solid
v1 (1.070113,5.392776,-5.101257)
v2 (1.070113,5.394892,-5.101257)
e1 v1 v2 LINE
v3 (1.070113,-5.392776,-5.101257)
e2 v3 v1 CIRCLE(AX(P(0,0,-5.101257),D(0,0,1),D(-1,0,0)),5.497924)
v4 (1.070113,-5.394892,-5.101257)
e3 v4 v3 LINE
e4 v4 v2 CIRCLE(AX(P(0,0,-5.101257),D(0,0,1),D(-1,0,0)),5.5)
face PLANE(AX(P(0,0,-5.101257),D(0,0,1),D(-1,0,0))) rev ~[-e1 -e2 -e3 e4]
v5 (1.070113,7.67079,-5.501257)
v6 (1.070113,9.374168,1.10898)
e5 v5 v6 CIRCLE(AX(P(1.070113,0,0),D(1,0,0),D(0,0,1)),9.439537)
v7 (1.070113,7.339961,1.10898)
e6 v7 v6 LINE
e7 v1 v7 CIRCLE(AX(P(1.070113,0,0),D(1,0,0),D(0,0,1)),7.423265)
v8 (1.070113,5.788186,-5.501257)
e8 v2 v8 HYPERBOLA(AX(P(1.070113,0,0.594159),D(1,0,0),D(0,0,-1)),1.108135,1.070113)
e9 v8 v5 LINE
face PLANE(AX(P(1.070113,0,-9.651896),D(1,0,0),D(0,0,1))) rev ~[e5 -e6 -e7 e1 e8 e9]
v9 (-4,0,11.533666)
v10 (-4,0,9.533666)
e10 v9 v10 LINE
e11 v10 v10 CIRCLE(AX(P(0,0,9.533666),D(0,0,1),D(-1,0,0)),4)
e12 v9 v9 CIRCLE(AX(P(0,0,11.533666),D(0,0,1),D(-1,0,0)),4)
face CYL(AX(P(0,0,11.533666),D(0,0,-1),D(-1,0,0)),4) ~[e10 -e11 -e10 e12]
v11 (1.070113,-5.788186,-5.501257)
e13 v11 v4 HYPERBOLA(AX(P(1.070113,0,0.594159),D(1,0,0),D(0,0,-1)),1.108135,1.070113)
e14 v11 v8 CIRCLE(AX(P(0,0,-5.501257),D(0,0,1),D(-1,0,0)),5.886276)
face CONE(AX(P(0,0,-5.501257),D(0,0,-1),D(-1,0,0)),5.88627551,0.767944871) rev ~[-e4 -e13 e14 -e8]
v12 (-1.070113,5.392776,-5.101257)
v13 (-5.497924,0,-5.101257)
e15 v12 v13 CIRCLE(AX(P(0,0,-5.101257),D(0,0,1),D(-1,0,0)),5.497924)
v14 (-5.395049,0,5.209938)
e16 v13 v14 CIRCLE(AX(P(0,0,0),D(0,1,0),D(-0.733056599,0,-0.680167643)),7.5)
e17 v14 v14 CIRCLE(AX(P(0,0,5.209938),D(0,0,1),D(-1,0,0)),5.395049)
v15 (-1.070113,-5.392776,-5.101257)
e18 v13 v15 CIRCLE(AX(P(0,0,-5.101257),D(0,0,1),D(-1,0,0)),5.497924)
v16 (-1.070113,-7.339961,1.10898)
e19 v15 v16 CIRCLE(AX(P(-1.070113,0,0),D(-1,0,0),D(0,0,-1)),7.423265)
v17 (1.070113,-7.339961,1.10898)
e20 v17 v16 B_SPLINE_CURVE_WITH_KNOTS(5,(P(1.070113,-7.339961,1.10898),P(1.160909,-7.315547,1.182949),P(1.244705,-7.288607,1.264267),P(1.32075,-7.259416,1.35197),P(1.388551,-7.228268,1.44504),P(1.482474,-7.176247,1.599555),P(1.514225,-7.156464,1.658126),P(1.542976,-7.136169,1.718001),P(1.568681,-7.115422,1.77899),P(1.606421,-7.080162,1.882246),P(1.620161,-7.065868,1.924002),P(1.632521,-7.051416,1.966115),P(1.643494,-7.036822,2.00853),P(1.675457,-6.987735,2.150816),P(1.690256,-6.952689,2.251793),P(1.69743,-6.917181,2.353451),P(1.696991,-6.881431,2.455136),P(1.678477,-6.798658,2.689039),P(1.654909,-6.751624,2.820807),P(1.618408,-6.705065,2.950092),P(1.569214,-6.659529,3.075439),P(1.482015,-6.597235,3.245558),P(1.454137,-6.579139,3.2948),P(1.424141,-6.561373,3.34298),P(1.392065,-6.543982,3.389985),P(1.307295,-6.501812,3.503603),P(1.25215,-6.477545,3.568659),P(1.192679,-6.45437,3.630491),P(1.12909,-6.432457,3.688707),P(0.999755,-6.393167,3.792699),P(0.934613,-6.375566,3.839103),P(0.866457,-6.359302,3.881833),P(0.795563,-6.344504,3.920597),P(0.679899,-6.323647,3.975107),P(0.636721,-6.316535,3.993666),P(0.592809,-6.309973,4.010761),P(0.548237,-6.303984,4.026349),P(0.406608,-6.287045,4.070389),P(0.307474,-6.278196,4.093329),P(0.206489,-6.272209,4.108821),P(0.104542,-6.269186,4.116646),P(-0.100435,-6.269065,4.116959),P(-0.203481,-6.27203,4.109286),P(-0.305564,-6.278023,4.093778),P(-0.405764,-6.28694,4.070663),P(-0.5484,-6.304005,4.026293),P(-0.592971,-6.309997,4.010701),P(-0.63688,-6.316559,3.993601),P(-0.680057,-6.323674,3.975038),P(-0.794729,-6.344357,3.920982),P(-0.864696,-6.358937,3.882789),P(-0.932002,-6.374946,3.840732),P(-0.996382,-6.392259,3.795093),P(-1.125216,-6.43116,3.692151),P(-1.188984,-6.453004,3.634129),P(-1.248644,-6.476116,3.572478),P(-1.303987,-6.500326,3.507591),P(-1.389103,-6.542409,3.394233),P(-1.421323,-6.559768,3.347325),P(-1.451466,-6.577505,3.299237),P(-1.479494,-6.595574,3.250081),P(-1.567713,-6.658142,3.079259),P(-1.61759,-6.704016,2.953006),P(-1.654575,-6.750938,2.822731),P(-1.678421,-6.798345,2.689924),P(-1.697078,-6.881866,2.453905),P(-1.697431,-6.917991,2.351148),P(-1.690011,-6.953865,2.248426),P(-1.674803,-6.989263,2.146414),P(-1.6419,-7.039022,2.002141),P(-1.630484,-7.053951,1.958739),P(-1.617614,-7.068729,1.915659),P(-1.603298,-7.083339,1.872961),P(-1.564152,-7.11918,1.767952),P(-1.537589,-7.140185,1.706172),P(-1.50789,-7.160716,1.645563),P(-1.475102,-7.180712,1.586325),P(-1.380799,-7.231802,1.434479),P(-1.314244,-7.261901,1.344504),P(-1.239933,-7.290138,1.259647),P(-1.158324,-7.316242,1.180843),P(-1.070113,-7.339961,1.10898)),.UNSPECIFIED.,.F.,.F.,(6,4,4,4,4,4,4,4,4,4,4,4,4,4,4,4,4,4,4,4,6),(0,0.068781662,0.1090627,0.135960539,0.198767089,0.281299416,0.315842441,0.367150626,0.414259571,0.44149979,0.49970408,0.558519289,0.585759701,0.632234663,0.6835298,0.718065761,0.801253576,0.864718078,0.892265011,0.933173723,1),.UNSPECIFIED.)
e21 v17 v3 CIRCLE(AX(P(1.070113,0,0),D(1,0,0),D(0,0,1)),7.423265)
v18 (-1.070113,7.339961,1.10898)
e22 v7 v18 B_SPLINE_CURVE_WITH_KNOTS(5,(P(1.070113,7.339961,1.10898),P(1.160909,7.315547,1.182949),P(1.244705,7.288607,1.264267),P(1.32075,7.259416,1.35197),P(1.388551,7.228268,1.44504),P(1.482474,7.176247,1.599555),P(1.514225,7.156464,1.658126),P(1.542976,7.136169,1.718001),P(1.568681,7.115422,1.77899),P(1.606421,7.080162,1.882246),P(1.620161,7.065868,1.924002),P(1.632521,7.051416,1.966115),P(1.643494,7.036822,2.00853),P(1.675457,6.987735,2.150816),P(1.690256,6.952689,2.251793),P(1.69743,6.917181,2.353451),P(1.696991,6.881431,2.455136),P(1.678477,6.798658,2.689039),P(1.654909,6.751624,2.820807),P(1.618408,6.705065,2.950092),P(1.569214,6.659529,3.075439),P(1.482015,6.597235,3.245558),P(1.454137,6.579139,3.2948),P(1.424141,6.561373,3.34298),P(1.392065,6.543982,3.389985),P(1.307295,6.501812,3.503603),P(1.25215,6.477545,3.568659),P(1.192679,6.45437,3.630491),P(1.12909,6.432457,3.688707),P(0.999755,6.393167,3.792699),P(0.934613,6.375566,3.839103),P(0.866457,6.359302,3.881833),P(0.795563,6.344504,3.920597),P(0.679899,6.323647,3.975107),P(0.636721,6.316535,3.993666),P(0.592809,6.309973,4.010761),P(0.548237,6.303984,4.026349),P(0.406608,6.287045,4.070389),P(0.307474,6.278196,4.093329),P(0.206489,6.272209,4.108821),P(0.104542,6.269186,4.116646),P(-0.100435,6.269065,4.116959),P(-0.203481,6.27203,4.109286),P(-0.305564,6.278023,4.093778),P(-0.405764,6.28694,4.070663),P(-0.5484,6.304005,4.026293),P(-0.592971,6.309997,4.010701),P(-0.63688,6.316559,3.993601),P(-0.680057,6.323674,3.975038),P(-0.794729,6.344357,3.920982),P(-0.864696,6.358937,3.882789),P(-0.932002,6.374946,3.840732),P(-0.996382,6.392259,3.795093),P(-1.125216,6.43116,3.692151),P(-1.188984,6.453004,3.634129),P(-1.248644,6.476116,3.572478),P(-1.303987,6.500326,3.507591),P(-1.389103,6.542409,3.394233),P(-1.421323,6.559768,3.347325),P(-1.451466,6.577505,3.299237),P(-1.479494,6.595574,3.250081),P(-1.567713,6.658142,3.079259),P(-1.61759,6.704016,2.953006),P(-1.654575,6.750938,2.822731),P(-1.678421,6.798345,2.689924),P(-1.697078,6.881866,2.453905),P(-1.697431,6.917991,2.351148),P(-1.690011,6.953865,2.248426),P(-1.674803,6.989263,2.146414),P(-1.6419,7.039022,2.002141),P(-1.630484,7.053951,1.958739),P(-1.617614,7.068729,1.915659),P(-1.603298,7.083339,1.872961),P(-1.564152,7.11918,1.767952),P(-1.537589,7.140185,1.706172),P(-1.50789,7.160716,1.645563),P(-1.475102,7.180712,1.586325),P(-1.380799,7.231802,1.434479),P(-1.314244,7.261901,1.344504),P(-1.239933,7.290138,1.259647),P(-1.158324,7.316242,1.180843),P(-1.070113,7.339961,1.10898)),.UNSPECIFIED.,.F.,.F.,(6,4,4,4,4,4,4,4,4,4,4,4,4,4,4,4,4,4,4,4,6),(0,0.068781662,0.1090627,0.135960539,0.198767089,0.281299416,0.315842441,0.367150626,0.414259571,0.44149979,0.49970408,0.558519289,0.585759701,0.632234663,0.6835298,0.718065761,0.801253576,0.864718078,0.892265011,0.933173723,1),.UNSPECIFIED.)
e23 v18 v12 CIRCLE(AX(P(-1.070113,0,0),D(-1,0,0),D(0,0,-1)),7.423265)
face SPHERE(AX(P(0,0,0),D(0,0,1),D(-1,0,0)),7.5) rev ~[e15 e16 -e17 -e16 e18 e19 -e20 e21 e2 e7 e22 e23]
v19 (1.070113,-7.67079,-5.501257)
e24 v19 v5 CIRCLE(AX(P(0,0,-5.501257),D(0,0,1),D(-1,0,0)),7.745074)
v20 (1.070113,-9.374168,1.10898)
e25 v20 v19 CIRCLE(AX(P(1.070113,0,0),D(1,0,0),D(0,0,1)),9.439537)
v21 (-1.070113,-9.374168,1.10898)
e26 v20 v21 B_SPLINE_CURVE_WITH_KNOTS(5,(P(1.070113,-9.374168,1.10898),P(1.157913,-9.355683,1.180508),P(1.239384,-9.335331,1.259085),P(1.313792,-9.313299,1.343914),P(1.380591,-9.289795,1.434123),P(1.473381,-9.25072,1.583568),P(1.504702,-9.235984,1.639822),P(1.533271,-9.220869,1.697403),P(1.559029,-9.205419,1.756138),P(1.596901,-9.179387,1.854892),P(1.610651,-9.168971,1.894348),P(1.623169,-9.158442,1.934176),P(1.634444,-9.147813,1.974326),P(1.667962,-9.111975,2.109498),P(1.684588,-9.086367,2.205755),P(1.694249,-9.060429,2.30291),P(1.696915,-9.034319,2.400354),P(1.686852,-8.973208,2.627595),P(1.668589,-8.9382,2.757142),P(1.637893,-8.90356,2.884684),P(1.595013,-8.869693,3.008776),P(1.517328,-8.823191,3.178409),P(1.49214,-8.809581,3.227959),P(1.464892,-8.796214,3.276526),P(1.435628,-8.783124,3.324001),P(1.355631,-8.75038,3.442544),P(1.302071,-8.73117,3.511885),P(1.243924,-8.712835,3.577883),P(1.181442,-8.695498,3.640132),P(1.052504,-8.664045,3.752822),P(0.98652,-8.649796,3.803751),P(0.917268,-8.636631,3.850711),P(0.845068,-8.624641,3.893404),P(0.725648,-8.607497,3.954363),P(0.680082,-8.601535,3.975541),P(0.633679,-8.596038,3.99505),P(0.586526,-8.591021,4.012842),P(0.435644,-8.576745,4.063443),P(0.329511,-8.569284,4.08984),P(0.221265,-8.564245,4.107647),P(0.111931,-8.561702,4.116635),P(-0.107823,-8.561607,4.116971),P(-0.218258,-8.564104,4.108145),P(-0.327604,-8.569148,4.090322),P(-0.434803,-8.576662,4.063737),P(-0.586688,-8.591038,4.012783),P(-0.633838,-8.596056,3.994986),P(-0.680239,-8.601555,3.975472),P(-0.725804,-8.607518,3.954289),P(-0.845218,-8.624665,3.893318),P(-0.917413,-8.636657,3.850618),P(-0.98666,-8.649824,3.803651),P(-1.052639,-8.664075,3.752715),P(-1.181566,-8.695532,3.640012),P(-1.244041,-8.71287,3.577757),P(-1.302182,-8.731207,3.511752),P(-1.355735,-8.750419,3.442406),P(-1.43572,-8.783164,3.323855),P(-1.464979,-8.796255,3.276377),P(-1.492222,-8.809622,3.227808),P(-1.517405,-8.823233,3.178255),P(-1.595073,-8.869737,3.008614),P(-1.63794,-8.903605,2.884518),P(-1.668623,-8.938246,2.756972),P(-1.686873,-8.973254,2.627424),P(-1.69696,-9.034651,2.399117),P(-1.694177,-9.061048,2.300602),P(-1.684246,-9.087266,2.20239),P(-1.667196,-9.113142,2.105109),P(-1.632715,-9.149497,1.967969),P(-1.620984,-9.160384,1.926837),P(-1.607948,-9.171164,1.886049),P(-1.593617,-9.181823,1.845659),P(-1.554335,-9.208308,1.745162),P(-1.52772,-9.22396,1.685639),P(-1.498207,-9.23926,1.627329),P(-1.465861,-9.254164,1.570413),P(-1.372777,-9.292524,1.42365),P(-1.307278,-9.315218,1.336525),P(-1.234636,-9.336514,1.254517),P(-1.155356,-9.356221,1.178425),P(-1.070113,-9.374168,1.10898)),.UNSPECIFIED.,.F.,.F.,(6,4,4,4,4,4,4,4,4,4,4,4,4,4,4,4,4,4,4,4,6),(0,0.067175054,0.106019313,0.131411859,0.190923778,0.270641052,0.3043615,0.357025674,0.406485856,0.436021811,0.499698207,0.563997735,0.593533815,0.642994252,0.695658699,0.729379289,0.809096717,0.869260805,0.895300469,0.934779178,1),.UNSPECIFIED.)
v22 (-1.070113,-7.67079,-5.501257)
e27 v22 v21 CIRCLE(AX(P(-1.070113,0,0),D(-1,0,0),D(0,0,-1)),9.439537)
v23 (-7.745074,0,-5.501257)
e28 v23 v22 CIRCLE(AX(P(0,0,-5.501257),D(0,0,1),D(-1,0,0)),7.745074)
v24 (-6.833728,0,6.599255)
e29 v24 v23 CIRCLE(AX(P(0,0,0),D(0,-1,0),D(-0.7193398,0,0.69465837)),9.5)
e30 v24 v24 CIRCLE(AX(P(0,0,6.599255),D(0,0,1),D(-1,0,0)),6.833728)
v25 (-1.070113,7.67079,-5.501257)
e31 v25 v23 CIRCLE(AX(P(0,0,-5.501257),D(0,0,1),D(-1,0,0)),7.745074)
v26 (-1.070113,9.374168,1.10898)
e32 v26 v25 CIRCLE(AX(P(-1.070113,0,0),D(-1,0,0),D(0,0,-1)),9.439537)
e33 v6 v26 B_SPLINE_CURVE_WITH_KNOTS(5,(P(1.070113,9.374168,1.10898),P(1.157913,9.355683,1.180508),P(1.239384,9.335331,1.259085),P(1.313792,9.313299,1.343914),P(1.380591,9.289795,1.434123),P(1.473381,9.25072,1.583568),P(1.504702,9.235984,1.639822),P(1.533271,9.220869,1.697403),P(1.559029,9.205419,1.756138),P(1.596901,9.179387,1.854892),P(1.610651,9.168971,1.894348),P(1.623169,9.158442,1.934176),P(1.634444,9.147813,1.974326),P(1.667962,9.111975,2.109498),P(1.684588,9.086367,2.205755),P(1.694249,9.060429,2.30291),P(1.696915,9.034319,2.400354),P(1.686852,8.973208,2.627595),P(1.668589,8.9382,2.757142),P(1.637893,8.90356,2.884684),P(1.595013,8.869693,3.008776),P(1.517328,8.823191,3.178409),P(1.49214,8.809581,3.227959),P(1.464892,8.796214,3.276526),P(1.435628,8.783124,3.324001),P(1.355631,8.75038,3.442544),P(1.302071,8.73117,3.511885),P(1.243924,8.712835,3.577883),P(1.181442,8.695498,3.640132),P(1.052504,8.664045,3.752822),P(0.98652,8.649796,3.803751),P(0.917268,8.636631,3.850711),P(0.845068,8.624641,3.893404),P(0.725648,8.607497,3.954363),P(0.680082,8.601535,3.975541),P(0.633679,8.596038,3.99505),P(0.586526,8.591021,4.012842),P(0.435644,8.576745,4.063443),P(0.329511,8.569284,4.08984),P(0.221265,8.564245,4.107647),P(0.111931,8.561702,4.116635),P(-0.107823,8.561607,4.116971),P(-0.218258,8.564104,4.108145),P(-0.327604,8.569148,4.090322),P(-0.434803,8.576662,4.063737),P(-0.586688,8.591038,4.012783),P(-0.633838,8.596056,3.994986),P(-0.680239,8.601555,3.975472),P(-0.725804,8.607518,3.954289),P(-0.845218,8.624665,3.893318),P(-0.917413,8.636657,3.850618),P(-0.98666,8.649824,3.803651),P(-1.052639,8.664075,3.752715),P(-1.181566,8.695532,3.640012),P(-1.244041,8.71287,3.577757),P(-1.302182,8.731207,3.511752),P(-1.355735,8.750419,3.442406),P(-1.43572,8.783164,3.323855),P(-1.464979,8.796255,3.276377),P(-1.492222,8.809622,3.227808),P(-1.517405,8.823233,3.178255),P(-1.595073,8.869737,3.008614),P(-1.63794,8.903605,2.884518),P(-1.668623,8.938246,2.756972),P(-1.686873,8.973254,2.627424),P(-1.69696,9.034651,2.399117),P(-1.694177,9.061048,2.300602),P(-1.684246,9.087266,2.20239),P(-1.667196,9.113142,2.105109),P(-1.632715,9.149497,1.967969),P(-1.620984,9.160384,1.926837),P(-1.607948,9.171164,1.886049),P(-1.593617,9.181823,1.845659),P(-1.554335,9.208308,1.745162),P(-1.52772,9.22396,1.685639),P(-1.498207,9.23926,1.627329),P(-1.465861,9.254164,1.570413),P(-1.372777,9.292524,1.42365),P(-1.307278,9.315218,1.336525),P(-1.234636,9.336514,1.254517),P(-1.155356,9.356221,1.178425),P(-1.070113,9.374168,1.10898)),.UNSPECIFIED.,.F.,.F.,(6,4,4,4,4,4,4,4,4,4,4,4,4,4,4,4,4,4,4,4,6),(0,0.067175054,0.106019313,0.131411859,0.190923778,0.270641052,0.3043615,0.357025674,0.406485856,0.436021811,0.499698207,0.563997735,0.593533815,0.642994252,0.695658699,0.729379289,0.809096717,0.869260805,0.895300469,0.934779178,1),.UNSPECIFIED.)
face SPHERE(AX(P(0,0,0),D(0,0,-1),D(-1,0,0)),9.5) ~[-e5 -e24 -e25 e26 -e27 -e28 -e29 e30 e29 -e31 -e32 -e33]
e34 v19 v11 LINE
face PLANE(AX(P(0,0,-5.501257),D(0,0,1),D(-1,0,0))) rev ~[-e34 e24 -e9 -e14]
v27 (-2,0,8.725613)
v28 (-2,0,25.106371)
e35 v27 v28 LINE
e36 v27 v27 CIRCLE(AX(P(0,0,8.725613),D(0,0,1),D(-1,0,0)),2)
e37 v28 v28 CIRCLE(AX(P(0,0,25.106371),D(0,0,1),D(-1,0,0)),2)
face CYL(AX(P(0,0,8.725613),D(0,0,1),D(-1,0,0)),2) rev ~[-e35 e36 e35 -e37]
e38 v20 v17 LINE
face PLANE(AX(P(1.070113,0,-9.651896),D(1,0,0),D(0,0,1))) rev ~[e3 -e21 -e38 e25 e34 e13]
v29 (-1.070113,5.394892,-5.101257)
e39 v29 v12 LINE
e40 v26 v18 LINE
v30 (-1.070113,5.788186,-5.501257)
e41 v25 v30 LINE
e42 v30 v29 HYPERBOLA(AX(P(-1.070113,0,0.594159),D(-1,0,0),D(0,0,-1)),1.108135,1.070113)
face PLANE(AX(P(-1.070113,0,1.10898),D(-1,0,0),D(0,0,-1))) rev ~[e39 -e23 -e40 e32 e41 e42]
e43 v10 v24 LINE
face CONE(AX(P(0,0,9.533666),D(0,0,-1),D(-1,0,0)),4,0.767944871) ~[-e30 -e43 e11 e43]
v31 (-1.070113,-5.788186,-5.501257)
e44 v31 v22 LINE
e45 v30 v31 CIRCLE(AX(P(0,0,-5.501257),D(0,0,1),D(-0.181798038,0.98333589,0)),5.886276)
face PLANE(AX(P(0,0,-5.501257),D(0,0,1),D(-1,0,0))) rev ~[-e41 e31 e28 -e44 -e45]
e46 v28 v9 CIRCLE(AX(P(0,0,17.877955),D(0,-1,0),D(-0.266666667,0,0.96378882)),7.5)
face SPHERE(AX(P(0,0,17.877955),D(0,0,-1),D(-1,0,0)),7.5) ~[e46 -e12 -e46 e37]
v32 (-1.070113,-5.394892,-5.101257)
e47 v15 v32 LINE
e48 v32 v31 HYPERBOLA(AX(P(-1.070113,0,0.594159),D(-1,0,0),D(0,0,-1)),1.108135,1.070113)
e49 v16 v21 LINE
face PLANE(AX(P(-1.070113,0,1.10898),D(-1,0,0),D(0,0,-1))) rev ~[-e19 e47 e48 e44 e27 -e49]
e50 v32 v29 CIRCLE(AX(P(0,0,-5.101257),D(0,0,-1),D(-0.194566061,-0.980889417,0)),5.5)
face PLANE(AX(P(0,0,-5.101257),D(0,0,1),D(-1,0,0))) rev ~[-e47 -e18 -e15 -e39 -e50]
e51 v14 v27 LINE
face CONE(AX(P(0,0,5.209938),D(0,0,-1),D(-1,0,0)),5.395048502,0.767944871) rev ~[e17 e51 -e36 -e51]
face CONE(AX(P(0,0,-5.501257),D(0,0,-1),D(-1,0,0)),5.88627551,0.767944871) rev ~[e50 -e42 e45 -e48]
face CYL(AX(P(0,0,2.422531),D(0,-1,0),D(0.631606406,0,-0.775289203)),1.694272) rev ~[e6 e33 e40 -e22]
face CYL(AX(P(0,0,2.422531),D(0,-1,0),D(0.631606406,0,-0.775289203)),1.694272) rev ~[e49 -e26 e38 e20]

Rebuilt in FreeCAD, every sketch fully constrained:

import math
import FreeCAD as App
import Part
import Sketcher

V = App.Vector
Q = App.Units.Quantity

doc = App.newDocument("Part")
body = doc.addObject("PartDesign::Body", "Body")

# Sketch on XZ plane
sketch1 = body.newObject("Sketcher::SketchObject", "Sketch")
sketch1.AttachmentSupport = (doc.getObject("XZ_Plane"), [""])
sketch1.MapMode = "FlatFace"
sketch1.addGeometry([
    Part.ArcOfCircle(Part.Circle(V(0, 17.878, 0), V(0, 0, 1), 7.5), math.radians(105), math.radians(238)),  # 0
    Part.LineSegment(V(-4, 11.5337, 0), V(-4, 9.5337, 0)),  # 1
    Part.LineSegment(V(-4, 9.5337, 0), V(-6.8337, 6.5993, 0)),  # 2
    Part.ArcOfCircle(Part.Circle(V(0, 0, 0), V(0, 0, 1), 9.5), math.radians(136), math.radians(215)),  # 3
    Part.LineSegment(V(-7.7451, -5.5013, 0), V(-5.8863, -5.5013, 0)),  # 4
    Part.LineSegment(V(-5.8863, -5.5013, 0), V(-5.5, -5.1013, 0)),  # 5
    Part.LineSegment(V(-5.5, -5.1013, 0), V(-5.4979, -5.1013, 0)),  # 6
    Part.ArcOfCircle(Part.Circle(V(0, 0, 0), V(0, 0, 1), 7.5), math.radians(136), math.radians(223)),  # 7
    Part.LineSegment(V(-5.395, 5.2099, 0), V(-2, 8.7256, 0)),  # 8
    Part.LineSegment(V(-2, 8.7256, 0), V(-2, 25.1064, 0)),  # 9
], False)
sketch1.addConstraint([
    Sketcher.Constraint("Coincident", 0, 2, 1, 1),
    Sketcher.Constraint("Coincident", 1, 2, 2, 1),
    Sketcher.Constraint("Tangent", 2, 2, 3, 1),
    Sketcher.Constraint("Coincident", 3, 2, 4, 1),
    Sketcher.Constraint("Coincident", 4, 2, 5, 1),
    Sketcher.Constraint("Coincident", 5, 2, 6, 1),
    Sketcher.Constraint("Coincident", 6, 2, 7, 2),
    Sketcher.Constraint("Tangent", 7, 1, 8, 1),
    Sketcher.Constraint("Coincident", 8, 2, 9, 1),
    Sketcher.Constraint("Coincident", 9, 2, 0, 1),
    Sketcher.Constraint("Vertical", 1),
    Sketcher.Constraint("Horizontal", 4),
    Sketcher.Constraint("Horizontal", 6),
    Sketcher.Constraint("Vertical", 9),
    Sketcher.Constraint("Coincident", 3, 3, -1, 1),
    Sketcher.Constraint("Coincident", 7, 3, -1, 1),
    Sketcher.Constraint("Equal", 0, 7),
    Sketcher.Constraint("PointOnObject", 0, 3, -2),
    Sketcher.Constraint("Parallel", 2, 5),
    Sketcher.Constraint("Parallel", 5, 8),
    Sketcher.Constraint("Radius", 0, Q("7.5 mm")),
    Sketcher.Constraint("Radius", 3, Q("9.5 mm")),
    Sketcher.Constraint("DistanceY", 1, 2, 1, 1, Q("2 mm")),
    Sketcher.Constraint("Angle", 2, Q("-134 deg")),
    Sketcher.Constraint("DistanceX", 0, 2, -1, 1, Q("4 mm")),
    Sketcher.Constraint("DistanceX", 8, 2, -1, 1, Q("2 mm")),
    Sketcher.Constraint("DistanceX", 5, 2, -1, 1, Q("5.5 mm")),
    Sketcher.Constraint("DistanceY", 4, 2, 5, 2, Q("0.4 mm")),
    Sketcher.Constraint("DistanceX", 4, 1, 4, 2, Q("1.858798 mm")),
])
revolution = body.newObject("PartDesign::Revolution", "Revolution")
revolution.Profile = sketch1
revolution.ReferenceAxis = (sketch1, ["V_Axis"])
revolution.Angle = 360

# Sketch on XZ plane
sketch2 = body.newObject("Sketcher::SketchObject", "Sketch001")
sketch2.AttachmentSupport = (doc.getObject("XZ_Plane"), [""])
sketch2.MapMode = "FlatFace"
sketch2.addGeometry([
    Part.ArcOfCircle(Part.Circle(V(0, 2.4, 0), V(0, 0, 1), 1.7), math.radians(-51), math.radians(0)),  # 0
    Part.ArcOfCircle(Part.Circle(V(0, 2.4, 0), V(0, 0, 1), 1.7), math.radians(0), math.radians(231)),  # 1
    Part.LineSegment(V(-1.1, 1.1, 0), V(-1.1, -9.7, 0)),  # 2
    Part.LineSegment(V(-1.1, -9.7, 0), V(1.1, -9.7, 0)),  # 3
    Part.LineSegment(V(1.1, -9.7, 0), V(1.1, 1.1, 0)),  # 4
], False)
sketch2.addConstraint([
    Sketcher.Constraint("Tangent", 0, 2, 1, 1),
    Sketcher.Constraint("Coincident", 1, 2, 2, 1),
    Sketcher.Constraint("Coincident", 2, 2, 3, 1),
    Sketcher.Constraint("Coincident", 3, 2, 4, 1),
    Sketcher.Constraint("Coincident", 4, 2, 0, 1),
    Sketcher.Constraint("Vertical", 2),
    Sketcher.Constraint("Horizontal", 3),
    Sketcher.Constraint("Vertical", 4),
    Sketcher.Constraint("Equal", 0, 1),
    Sketcher.Constraint("Symmetric", 1, 2, 4, 2, -2),
    Sketcher.Constraint("Horizontal", 1, 3, 0, 2),
    Sketcher.Constraint("Radius", 0, Q("1.694272 mm")),
    Sketcher.Constraint("DistanceX", 3, 1, 3, 2, Q("2.140227 mm")),
    Sketcher.Constraint("DistanceY", 2, 2, 2, 1, Q("10.760876 mm")),
    Sketcher.Constraint("DistanceY", -1, 1, 0, 3, Q("2.422531 mm")),
])
pocket1 = body.newObject("PartDesign::Pocket", "Pocket")
pocket1.Profile = sketch2
pocket1.Length = 25
pocket1.Midplane = True

doc.recompute()
